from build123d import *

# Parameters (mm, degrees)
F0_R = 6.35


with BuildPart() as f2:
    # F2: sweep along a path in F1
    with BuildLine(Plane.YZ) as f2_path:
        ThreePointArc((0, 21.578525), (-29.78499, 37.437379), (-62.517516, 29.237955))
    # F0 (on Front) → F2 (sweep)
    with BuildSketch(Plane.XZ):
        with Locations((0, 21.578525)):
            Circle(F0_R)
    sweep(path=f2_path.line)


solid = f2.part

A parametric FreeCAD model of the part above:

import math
import FreeCAD as App
import Part
import Sketcher

V = App.Vector
Q = App.Units.Quantity

doc = App.newDocument("Part")
body = doc.addObject("PartDesign::Body", "Body")

# Sketch on XZ plane
sketch1 = body.newObject("Sketcher::SketchObject", "Sketch")
sketch1.AttachmentSupport = (doc.getObject("XZ_Plane"), [""])
sketch1.MapMode = "FlatFace"
sketch1.addGeometry(Part.Circle(V(0, 22, 0), V(0, 0, 1), 6), False)
sketch1.addConstraint([
    Sketcher.Constraint("PointOnObject", 0, 3, -2),
    Sketcher.Constraint("Diameter", 0, Q("0.5 in")),
    Sketcher.Constraint("DistanceY", -1, 1, 0, 3, 21.578525),
])

# Sketch on YZ plane
sketch2 = body.newObject("Sketcher::SketchObject", "Sketch001")
sketch2.AttachmentSupport = (doc.getObject("YZ_Plane"), [""])
sketch2.MapMode = "FlatFace"
sketch2.addGeometry(Part.ArcOfCircle(Part.Circle(V(-35, -9, 0), V(0, 0, 1), 47), math.radians(41), math.radians(125)), False)
sketch2.addConstraint([
    Sketcher.Constraint("PointOnObject", 0, 1, -2),
    Sketcher.Constraint("Radius", 0, 46.977516),
    Sketcher.Constraint("DistanceY", 0, 3, 0, 1, 30.770009),
    Sketcher.Constraint("DistanceX", 0, 2, 0, 3, 27.019719),
    Sketcher.Constraint("DistanceY", 0, 3, -1, 1, 9.191484),
])
doc.recompute()

additivepipe = body.newObject("PartDesign::AdditivePipe", "AdditivePipe")
additivepipe.Profile = sketch1
additivepipe.Spine = (sketch2, ["Edge1"])

doc.recompute()
